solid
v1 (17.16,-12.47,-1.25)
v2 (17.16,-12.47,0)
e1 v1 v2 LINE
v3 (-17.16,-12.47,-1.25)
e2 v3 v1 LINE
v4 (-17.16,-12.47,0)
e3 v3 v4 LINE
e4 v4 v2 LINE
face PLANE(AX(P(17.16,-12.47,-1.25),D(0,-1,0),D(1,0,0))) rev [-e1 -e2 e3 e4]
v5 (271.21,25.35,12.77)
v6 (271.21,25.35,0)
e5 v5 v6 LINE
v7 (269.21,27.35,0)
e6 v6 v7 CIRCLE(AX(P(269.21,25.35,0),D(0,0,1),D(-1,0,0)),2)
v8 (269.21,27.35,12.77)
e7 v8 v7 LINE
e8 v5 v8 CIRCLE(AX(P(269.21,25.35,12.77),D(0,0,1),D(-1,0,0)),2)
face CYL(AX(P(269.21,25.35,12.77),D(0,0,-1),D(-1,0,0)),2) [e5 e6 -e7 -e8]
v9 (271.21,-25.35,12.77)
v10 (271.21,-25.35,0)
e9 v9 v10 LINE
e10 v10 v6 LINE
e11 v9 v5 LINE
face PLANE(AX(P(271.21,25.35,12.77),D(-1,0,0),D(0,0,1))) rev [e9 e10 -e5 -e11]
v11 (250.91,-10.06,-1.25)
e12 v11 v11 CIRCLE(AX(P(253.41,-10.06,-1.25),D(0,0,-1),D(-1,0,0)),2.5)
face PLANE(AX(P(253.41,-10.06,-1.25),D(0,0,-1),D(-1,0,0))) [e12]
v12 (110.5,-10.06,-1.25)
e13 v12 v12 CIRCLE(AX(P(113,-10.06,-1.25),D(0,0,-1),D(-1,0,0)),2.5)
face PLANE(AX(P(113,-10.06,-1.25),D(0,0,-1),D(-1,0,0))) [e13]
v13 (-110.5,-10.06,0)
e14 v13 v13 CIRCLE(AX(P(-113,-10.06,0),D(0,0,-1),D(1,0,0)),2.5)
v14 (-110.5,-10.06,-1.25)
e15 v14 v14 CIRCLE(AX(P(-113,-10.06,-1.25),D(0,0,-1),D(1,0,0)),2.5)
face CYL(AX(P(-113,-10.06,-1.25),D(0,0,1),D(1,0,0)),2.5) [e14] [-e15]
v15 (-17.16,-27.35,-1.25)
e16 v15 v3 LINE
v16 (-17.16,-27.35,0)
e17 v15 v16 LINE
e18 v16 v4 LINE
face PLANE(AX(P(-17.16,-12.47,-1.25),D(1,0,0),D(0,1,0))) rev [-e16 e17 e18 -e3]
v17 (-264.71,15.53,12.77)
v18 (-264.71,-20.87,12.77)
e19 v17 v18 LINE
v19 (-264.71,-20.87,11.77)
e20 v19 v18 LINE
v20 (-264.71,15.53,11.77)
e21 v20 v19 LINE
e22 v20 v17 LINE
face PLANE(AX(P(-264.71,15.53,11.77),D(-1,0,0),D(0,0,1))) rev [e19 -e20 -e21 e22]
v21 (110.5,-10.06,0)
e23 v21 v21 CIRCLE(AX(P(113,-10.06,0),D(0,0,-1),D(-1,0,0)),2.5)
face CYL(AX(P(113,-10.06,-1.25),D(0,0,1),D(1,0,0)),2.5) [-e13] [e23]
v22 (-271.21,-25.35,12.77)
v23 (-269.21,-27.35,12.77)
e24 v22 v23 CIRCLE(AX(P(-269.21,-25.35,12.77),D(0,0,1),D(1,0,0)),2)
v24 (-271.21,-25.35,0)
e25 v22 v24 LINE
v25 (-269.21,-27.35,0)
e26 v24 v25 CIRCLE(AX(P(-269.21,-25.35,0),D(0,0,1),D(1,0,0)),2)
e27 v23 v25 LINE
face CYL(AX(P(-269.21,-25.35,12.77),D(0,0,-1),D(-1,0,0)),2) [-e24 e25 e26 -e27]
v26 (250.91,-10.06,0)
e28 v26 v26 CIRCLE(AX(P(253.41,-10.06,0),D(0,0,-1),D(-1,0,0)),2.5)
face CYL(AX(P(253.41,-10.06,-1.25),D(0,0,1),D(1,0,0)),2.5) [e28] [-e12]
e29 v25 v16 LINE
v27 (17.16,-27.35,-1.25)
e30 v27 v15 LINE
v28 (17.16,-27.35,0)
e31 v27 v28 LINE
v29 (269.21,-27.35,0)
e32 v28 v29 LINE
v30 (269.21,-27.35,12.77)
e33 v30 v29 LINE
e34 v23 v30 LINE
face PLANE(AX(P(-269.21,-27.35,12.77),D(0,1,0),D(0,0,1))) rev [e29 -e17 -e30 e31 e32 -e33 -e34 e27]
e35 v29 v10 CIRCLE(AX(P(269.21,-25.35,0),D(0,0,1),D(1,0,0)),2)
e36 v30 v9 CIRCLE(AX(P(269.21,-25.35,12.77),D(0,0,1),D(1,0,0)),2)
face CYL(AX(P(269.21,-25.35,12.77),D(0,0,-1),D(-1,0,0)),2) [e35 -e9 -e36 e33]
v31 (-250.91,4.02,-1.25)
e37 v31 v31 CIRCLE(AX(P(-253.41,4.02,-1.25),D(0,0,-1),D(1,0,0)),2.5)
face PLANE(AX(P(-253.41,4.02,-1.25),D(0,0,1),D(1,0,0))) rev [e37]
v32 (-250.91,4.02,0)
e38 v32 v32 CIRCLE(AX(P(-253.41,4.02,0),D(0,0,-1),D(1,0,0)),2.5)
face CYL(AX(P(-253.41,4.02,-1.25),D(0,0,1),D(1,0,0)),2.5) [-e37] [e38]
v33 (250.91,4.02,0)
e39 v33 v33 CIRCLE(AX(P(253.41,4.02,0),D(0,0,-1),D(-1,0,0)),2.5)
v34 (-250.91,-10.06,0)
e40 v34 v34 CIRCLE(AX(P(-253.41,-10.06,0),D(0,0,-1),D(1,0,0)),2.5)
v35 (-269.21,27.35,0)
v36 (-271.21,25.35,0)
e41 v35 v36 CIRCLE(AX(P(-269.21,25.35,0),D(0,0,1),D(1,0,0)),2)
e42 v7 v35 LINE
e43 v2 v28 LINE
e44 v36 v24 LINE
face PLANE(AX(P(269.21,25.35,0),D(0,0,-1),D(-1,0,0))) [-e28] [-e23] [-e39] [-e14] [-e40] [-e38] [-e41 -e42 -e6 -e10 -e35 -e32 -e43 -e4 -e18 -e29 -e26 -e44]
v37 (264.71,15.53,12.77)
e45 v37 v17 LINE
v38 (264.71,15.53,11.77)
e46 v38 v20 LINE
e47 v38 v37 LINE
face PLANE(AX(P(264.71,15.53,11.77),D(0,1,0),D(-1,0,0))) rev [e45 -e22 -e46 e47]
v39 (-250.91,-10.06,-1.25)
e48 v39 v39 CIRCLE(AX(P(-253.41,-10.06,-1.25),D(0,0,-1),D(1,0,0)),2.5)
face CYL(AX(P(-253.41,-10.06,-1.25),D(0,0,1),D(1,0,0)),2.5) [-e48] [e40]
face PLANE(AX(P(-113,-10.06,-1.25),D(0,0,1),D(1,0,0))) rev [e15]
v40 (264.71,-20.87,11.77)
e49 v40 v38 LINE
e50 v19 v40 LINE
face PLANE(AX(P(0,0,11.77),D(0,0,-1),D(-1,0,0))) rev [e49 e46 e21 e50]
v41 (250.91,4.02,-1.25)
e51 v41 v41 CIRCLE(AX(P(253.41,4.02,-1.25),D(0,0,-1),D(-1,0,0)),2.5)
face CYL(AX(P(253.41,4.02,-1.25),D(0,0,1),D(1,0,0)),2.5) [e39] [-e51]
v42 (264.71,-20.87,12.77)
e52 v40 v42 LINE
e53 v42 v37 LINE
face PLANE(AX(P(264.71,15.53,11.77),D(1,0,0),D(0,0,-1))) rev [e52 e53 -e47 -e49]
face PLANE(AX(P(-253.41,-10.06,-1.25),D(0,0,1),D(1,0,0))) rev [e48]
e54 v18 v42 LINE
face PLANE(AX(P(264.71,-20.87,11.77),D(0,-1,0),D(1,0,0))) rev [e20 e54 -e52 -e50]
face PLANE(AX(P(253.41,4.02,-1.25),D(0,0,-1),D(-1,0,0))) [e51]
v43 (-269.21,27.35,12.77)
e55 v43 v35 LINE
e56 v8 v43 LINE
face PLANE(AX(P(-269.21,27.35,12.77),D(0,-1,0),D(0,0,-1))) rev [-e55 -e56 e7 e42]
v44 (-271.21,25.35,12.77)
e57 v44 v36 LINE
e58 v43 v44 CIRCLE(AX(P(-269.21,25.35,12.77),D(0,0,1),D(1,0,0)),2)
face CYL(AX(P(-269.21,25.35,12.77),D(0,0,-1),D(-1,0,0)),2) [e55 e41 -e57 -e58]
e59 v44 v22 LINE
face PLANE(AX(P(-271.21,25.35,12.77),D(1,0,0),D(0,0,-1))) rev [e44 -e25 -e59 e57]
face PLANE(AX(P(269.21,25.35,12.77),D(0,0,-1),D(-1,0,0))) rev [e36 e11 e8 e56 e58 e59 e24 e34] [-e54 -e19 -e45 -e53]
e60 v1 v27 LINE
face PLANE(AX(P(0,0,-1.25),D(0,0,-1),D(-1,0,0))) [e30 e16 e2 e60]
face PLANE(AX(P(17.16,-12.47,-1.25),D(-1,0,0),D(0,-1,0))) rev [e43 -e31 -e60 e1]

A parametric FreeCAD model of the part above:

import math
import FreeCAD as App
import Part
import Sketcher
from FreeCAD import Vector
Q = App.Units.Quantity

doc = App.newDocument("Part")
body = doc.addObject("PartDesign::Body", "Body")

# Sketch on XY plane
sketch1 = body.newObject("Sketcher::SketchObject", "Sketch")
sketch1.AttachmentSupport = (doc.getObject("XY_Plane"), [""])
sketch1.MapMode = "FlatFace"
sketch1.addGeometry([
    Part.LineSegment(Vector(269.21, 27.35, 0), Vector(-269.21, 27.35, 0)),  # 0
    Part.ArcOfCircle(Part.Circle(Vector(-269.21, 25.35, 0), Vector(0, 0, 1), 2), math.radians(90), math.radians(180)),  # 1
    Part.LineSegment(Vector(-271.21, 25.35, 0), Vector(-271.21, -25.35, 0)),  # 2
    Part.ArcOfCircle(Part.Circle(Vector(-269.21, -25.35, 0), Vector(0, 0, 1), 2), math.radians(-180), math.radians(-90)),  # 3
    Part.LineSegment(Vector(-269.21, -27.35, 0), Vector(269.21, -27.35, 0)),  # 4
    Part.ArcOfCircle(Part.Circle(Vector(269.21, -25.35, 0), Vector(0, 0, 1), 2), math.radians(-90), math.radians(0)),  # 5
    Part.LineSegment(Vector(271.21, -25.35, 0), Vector(271.21, 25.35, 0)),  # 6
    Part.ArcOfCircle(Part.Circle(Vector(269.21, 25.35, 0), Vector(0, 0, 1), 2), math.radians(0), math.radians(90)),  # 7
], False)
sketch1.addConstraint([
    Sketcher.Constraint("Tangent", 0, 2, 1, 1),
    Sketcher.Constraint("Tangent", 1, 2, 2, 1),
    Sketcher.Constraint("Tangent", 2, 2, 3, 1),
    Sketcher.Constraint("Tangent", 3, 2, 4, 1),
    Sketcher.Constraint("Tangent", 4, 2, 5, 1),
    Sketcher.Constraint("Tangent", 5, 2, 6, 1),
    Sketcher.Constraint("Tangent", 6, 2, 7, 1),
    Sketcher.Constraint("Tangent", 7, 2, 0, 1),
    Sketcher.Constraint("Horizontal", 0),
    Sketcher.Constraint("Vertical", 2),
    Sketcher.Constraint("Horizontal", 4),
    Sketcher.Constraint("Vertical", 6),
    Sketcher.Constraint("Equal", 1, 3),
    Sketcher.Constraint("Equal", 3, 5),
    Sketcher.Constraint("Equal", 5, 7),
    Sketcher.Constraint("Symmetric", 1, 3, 5, 3, -1, 1),
    Sketcher.Constraint("Radius", 1, Q("2 mm")),
    Sketcher.Constraint("DistanceY", 2, 2, 2, 1, Q("50.7 mm")),
    Sketcher.Constraint("DistanceX", 0, 2, 0, 1, Q("538.42 mm")),
])
pad1 = body.newObject("PartDesign::Pad", "Pad")
pad1.Profile = sketch1
pad1.Length = 12.77

# Sketch on XY plane
sketch2 = body.newObject("Sketcher::SketchObject", "Sketch001")
sketch2.AttachmentSupport = (doc.getObject("XY_Plane"), [""])
sketch2.MapMode = "FlatFace"
sketch2.AttachmentOffset = App.Placement(Vector(0, 0, 12.77), App.Rotation())
sketch2.addGeometry([
    Part.LineSegment(Vector(-264.71, 15.53, 0), Vector(-264.71, -20.87, 0)),
    Part.LineSegment(Vector(-264.71, -20.87, 0), Vector(264.71, -20.87, 0)),
    Part.LineSegment(Vector(264.71, -20.87, 0), Vector(264.71, 15.53, 0)),
    Part.LineSegment(Vector(264.71, 15.53, 0), Vector(-264.71, 15.53, 0)),
], False)
sketch2.addConstraint([
    Sketcher.Constraint("Coincident", 0, 2, 1, 1),
    Sketcher.Constraint("Coincident", 1, 2, 2, 1),
    Sketcher.Constraint("Coincident", 2, 2, 3, 1),
    Sketcher.Constraint("Coincident", 3, 2, 0, 1),
    Sketcher.Constraint("Vertical", 0),
    Sketcher.Constraint("Horizontal", 1),
    Sketcher.Constraint("Vertical", 2),
    Sketcher.Constraint("Horizontal", 3),
    Sketcher.Constraint("DistanceY", 0, 2, 0, 1, Q("36.4 mm")),
    Sketcher.Constraint("DistanceX", 1, 1, 1, 2, Q("529.42 mm")),
    Sketcher.Constraint("DistanceX", 0, 2, -1, 1, Q("264.71 mm")),
    Sketcher.Constraint("DistanceY", 0, 2, -1, 1, Q("20.87 mm")),
])
pocket1 = body.newObject("PartDesign::Pocket", "Pocket")
pocket1.Profile = sketch2
pocket1.Length = 1

# Sketch on XY plane
sketch3 = body.newObject("Sketcher::SketchObject", "Sketch002")
sketch3.AttachmentSupport = (doc.getObject("XY_Plane"), [""])
sketch3.MapMode = "FlatFace"
sketch3.addGeometry([
    Part.Circle(Vector(253.41, 4.02, 0), Vector(0, 0, 1), 2.5),  # 0
    Part.Circle(Vector(253.41, -10.06, 0), Vector(0, 0, 1), 2.5),  # 1
    Part.Circle(Vector(113, -10.06, 0), Vector(0, 0, 1), 2.5),  # 2
    Part.Circle(Vector(-113, -10.06, 0), Vector(0, 0, 1), 2.5),  # 3
    Part.Circle(Vector(-253.41, -10.06, 0), Vector(0, 0, 1), 2.5),  # 4
    Part.Circle(Vector(-253.41, 4.02, 0), Vector(0, 0, 1), 2.5),  # 5
    Part.LineSegment(Vector(17.16, -12.47, 0), Vector(17.16, -27.35, 0)),  # 6
    Part.LineSegment(Vector(17.16, -27.35, 0), Vector(-17.16, -27.35, 0)),  # 7
    Part.LineSegment(Vector(-17.16, -27.35, 0), Vector(-17.16, -12.47, 0)),  # 8
    Part.LineSegment(Vector(-17.16, -12.47, 0), Vector(17.16, -12.47, 0)),  # 9
], False)
sketch3.addConstraint([
    Sketcher.Constraint("Coincident", 6, 2, 7, 1),
    Sketcher.Constraint("Coincident", 7, 2, 8, 1),
    Sketcher.Constraint("Coincident", 8, 2, 9, 1),
    Sketcher.Constraint("Coincident", 9, 2, 6, 1),
    Sketcher.Constraint("Vertical", 6),
    Sketcher.Constraint("Horizontal", 7),
    Sketcher.Constraint("Vertical", 8),
    Sketcher.Constraint("Horizontal", 9),
    Sketcher.Constraint("Equal", 0, 1),
    Sketcher.Constraint("Equal", 1, 2),
    Sketcher.Constraint("Equal", 2, 3),
    Sketcher.Constraint("Equal", 3, 4),
    Sketcher.Constraint("Equal", 4, 5),
    Sketcher.Constraint("Symmetric", 2, 3, 3, 3, -2),
    Sketcher.Constraint("Symmetric", 1, 3, 4, 3, -2),
    Sketcher.Constraint("Symmetric", 0, 3, 5, 3, -2),
    Sketcher.Constraint("Horizontal", 1, 3, 2, 3),
    Sketcher.Constraint("Vertical", 0, 3, 1, 3),
    Sketcher.Constraint("Diameter", 0, Q("5 mm")),
    Sketcher.Constraint("DistanceX", -1, 1, 2, 3, Q("113 mm")),
    Sketcher.Constraint("DistanceX", 7, 2, 7, 1, Q("34.32 mm")),
    Sketcher.Constraint("DistanceY", 6, 2, 6, 1, Q("14.88 mm")),
    Sketcher.Constraint("DistanceX", -1, 1, 0, 3, Q("253.41 mm")),
    Sketcher.Constraint("DistanceY", -1, 1, 0, 3, Q("4.02 mm")),
    Sketcher.Constraint("DistanceY", 1, 3, -1, 1, Q("10.06 mm")),
    Sketcher.Constraint("DistanceX", -1, 1, 6, 2, Q("17.16 mm")),
    Sketcher.Constraint("DistanceY", 6, 2, -1, 1, Q("27.35 mm")),
])
pad2 = body.newObject("PartDesign::Pad", "Pad001")
pad2.Profile = sketch3
pad2.Length = 1.25
pad2.Reversed = True

doc.recompute()
